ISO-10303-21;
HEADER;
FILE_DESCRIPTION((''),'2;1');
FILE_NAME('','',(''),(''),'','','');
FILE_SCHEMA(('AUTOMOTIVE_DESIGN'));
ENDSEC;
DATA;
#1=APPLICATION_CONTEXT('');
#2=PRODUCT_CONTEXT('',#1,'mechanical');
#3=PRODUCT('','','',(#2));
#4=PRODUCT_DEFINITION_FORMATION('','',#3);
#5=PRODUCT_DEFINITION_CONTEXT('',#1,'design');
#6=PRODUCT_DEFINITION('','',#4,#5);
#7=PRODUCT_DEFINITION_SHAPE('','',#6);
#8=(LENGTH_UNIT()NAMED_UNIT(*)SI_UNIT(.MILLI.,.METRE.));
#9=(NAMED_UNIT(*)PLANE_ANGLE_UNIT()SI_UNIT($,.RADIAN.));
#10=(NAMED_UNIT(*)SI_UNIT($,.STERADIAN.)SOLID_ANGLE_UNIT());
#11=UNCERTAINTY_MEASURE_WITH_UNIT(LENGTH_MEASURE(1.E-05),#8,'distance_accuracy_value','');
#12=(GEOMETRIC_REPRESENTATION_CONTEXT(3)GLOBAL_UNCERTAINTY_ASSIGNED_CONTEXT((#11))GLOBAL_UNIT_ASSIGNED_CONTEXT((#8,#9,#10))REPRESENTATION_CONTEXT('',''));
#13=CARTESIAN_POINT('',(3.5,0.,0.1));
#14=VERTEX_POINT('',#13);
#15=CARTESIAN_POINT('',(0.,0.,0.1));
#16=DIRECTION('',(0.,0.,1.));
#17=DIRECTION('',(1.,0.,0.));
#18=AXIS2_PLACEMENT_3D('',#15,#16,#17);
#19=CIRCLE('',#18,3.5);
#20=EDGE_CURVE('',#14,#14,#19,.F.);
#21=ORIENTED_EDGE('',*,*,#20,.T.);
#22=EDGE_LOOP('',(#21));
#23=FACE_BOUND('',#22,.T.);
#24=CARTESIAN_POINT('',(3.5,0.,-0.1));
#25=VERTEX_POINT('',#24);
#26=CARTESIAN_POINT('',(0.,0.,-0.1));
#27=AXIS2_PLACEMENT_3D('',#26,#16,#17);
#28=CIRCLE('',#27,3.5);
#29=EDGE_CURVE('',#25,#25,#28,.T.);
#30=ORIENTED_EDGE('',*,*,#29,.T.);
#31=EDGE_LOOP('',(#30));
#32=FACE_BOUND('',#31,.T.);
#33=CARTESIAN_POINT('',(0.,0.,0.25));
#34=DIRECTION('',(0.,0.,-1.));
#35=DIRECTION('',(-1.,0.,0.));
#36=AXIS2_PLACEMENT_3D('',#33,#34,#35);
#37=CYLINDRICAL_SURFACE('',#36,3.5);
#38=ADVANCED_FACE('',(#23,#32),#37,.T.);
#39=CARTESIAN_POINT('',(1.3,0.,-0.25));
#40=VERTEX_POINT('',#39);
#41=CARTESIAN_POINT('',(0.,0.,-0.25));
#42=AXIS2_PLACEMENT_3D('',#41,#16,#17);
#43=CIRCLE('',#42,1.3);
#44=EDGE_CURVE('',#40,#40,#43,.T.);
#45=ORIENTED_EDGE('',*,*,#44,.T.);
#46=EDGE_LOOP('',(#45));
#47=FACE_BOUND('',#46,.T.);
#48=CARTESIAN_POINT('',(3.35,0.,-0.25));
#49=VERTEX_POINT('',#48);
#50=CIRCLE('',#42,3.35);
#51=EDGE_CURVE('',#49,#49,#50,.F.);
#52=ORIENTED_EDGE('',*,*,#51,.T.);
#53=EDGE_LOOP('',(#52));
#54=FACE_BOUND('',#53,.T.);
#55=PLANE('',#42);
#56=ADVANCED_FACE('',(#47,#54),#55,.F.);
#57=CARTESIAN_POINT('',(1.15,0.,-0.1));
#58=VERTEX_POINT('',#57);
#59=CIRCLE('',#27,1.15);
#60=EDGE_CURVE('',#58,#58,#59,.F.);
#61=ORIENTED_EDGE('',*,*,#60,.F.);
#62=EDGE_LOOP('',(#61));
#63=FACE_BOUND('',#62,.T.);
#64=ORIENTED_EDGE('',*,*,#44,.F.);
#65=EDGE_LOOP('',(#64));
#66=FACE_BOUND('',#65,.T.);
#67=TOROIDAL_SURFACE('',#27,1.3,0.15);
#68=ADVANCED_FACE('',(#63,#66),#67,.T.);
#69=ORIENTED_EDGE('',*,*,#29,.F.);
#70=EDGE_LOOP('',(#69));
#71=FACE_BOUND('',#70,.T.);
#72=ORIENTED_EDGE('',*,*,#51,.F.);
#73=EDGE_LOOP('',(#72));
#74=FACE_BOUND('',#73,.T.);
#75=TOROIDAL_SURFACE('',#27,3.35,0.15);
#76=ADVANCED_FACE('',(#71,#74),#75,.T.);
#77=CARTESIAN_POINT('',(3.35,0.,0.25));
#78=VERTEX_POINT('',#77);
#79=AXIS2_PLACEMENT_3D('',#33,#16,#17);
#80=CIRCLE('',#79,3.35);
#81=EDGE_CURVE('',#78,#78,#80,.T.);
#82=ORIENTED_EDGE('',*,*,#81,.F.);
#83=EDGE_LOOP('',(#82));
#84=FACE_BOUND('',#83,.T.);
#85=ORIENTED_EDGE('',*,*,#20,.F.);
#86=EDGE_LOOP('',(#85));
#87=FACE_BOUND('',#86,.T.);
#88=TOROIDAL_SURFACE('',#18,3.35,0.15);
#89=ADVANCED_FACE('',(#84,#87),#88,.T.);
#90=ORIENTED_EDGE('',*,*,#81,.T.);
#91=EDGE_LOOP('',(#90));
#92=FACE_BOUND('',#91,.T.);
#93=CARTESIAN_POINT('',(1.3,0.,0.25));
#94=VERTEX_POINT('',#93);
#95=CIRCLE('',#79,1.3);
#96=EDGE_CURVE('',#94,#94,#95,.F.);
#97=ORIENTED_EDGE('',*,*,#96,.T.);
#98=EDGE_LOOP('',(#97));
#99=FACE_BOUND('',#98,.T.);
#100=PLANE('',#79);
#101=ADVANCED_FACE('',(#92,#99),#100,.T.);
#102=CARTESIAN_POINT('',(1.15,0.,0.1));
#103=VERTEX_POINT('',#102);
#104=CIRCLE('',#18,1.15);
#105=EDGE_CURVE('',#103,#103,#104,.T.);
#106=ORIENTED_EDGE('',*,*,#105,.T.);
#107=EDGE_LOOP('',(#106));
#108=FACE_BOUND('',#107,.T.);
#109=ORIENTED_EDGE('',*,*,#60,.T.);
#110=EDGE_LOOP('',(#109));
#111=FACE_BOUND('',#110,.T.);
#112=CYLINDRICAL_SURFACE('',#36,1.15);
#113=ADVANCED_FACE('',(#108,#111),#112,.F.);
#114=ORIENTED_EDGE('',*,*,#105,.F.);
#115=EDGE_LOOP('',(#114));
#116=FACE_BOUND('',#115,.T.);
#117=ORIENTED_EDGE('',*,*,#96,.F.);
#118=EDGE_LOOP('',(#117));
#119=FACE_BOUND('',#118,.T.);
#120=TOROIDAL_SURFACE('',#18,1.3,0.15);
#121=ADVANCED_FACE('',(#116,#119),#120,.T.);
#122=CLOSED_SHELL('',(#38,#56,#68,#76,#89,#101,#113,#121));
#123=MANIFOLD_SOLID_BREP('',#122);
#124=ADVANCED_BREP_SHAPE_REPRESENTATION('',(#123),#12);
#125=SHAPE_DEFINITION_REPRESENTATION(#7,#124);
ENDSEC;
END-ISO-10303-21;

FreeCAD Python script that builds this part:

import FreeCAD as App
import Part
import Sketcher

V = App.Vector
Q = App.Units.Quantity


def edges_at(feature, points):
    """Names of the edges that pass closest to the given points."""
    edges = feature.Shape.Edges
    near = lambda p: min(range(len(edges)), key=lambda i: edges[i].distToShape(Part.Vertex(*p))[0])
    return sorted({f"Edge{near(p) + 1}" for p in points})

doc = App.newDocument("Part")
body = doc.addObject("PartDesign::Body", "Body")

sketch1 = doc.addObject("Sketcher::SketchObject", "Sketch")
body.addObject(sketch1)
sketch1.AttachmentSupport = (doc.XY_Plane, [""])
sketch1.MapMode = "FlatFace"
sketch1.addGeometry([
    Part.Circle(V(0, 0, 0), V(0, 0, 1), 3.5),
    Part.Circle(V(0, 0, 0), V(0, 0, 1), 1.15),
], False)
sketch1.addConstraint([
    Sketcher.Constraint("Coincident", 0, 3, -1, 1),
    Sketcher.Constraint("Coincident", 1, 3, -1, 1),
    Sketcher.Constraint("Diameter", 0, Q("7 mm")),
    Sketcher.Constraint("Diameter", 1, Q("2.3 mm")),
])
pad1 = doc.addObject("PartDesign::Pad", "Pad")
body.addObject(pad1)
pad1.Profile = sketch1
pad1.Length = 0.5
pad1.Midplane = True
doc.recompute()

fillet = doc.addObject("PartDesign::Fillet", "Fillet")
body.addObject(fillet)
fillet.Base = (pad1, edges_at(pad1, [
    (-3.5, 0, -0.25),
    (-3.5, 0, 0.25),
    (-1.15, 0, -0.25),
    (-1.15, 0, 0.25),
]))
fillet.Radius = 0.15

doc.recompute()
